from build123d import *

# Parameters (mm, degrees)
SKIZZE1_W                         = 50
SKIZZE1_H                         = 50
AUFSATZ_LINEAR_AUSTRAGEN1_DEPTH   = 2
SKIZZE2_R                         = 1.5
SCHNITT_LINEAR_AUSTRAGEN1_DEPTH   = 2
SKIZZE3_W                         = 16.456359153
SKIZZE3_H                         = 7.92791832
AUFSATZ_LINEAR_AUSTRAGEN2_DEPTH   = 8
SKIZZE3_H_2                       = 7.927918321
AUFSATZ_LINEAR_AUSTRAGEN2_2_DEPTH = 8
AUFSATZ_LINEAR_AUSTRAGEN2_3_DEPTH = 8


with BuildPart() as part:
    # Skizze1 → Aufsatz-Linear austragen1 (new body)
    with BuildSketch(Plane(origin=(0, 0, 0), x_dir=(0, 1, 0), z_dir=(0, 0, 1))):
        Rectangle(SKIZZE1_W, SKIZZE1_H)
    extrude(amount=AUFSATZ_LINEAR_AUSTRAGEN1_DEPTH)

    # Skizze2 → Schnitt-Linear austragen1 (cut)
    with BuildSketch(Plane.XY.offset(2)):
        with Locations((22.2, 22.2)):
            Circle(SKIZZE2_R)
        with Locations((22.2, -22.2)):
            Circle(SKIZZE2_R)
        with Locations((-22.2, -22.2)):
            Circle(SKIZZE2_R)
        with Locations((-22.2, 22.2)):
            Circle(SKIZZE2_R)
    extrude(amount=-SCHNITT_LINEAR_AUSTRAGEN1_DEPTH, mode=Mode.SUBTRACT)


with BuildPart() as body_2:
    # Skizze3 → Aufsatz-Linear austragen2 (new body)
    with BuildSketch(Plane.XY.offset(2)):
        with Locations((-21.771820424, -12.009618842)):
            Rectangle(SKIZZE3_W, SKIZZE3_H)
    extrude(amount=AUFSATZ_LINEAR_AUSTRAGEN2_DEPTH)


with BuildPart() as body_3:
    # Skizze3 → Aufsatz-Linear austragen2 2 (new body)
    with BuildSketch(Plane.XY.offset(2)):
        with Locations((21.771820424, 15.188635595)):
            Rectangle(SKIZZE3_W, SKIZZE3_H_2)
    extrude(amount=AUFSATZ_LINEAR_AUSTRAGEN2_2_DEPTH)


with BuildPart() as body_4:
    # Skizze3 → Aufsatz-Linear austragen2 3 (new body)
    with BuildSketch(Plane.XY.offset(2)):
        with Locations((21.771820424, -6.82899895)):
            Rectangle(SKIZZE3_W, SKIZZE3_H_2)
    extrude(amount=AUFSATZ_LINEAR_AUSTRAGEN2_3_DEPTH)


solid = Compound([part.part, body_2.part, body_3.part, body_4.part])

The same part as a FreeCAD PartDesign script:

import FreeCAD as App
import Part
import Sketcher

doc = App.newDocument("Part")
body = doc.addObject("PartDesign::Body", "Body")

# Sketch on XY plane
sketch1 = body.newObject("Sketcher::SketchObject", "Sketch")
sketch1.AttachmentSupport = (doc.getObject("XY_Plane"), [""])
sketch1.MapMode = "FlatFace"
sketch1.addGeometry([
    Part.LineSegment(App.Vector(-25, -25, 0), App.Vector(25, -25, 0)),
    Part.LineSegment(App.Vector(25, -25, 0), App.Vector(25, 25, 0)),
    Part.LineSegment(App.Vector(25, 25, 0), App.Vector(-25, 25, 0)),
    Part.LineSegment(App.Vector(-25, 25, 0), App.Vector(-25, -25, 0)),
], False)
sketch1.addConstraint([
    Sketcher.Constraint("Coincident", 0, 2, 1, 1),
    Sketcher.Constraint("Coincident", 1, 2, 2, 1),
    Sketcher.Constraint("Coincident", 2, 2, 3, 1),
    Sketcher.Constraint("Coincident", 3, 2, 0, 1),
    Sketcher.Constraint("Horizontal", 0),
    Sketcher.Constraint("Vertical", 1),
    Sketcher.Constraint("Horizontal", 2),
    Sketcher.Constraint("Vertical", 3),
    Sketcher.Constraint("Symmetric", 0, 2, 2, 2, -1, 1),
    Sketcher.Constraint("Equal", 2, 1),
    Sketcher.Constraint("DistanceX", 0, 1, 0, 2, 50.0),
])
pad1 = body.newObject("PartDesign::Pad", "Pad")
pad1.Profile = sketch1
pad1.Length = 2

# Sketch on XY plane
sketch2 = body.newObject("Sketcher::SketchObject", "Sketch001")
sketch2.AttachmentSupport = (doc.getObject("XY_Plane"), [""])
sketch2.MapMode = "FlatFace"
sketch2.AttachmentOffset = App.Placement(App.Vector(0, 0, 2), App.Rotation())
sketch2.addGeometry([
    Part.Circle(App.Vector(22.2, 22.2, 0), App.Vector(0, 0, 1), 1.5),
    Part.Circle(App.Vector(22.2, -22.2, 0), App.Vector(0, 0, 1), 1.5),
    Part.Circle(App.Vector(-22.2, -22.2, 0), App.Vector(0, 0, 1), 1.5),
    Part.Circle(App.Vector(-22.2, 22.2, 0), App.Vector(0, 0, 1), 1.5),
], False)
sketch2.addConstraint([
    Sketcher.Constraint("Equal", 0, 1),
    Sketcher.Constraint("Equal", 1, 2),
    Sketcher.Constraint("Equal", 2, 3),
    Sketcher.Constraint("Symmetric", 0, 3, 2, 3, -1, 1),
    Sketcher.Constraint("Symmetric", 1, 3, 3, 3, -1, 1),
    Sketcher.Constraint("Symmetric", 1, 3, 2, 3, -2),
    Sketcher.Constraint("Diameter", 0, 3.0),
    Sketcher.Constraint("DistanceX", -1, 1, 0, 3, 22.2),
    Sketcher.Constraint("DistanceY", -1, 1, 0, 3, 22.2),
])
pocket1 = body.newObject("PartDesign::Pocket", "Pocket")
pocket1.Profile = sketch2
pocket1.Length = 2
body2 = doc.addObject("PartDesign::Body", "Body001")

# Sketch on XY plane
sketch3 = body2.newObject("Sketcher::SketchObject", "Sketch002")
sketch3.AttachmentSupport = (doc.getObject("XY_Plane001"), [""])
sketch3.MapMode = "FlatFace"
sketch3.AttachmentOffset = App.Placement(App.Vector(0, 0, 2), App.Rotation())
sketch3.addGeometry([
    Part.LineSegment(App.Vector(-30, -8.04566, 0), App.Vector(-30, -15.973578, 0)),
    Part.LineSegment(App.Vector(-30, -15.973578, 0), App.Vector(-13.543641, -15.973578, 0)),
    Part.LineSegment(App.Vector(-13.543641, -15.973578, 0), App.Vector(-13.543641, -8.04566, 0)),
    Part.LineSegment(App.Vector(-13.543641, -8.04566, 0), App.Vector(-30, -8.04566, 0)),
], False)
sketch3.addConstraint([
    Sketcher.Constraint("Coincident", 0, 2, 1, 1),
    Sketcher.Constraint("Coincident", 1, 2, 2, 1),
    Sketcher.Constraint("Coincident", 2, 2, 3, 1),
    Sketcher.Constraint("Coincident", 3, 2, 0, 1),
    Sketcher.Constraint("Vertical", 0),
    Sketcher.Constraint("Horizontal", 1),
    Sketcher.Constraint("Vertical", 2),
    Sketcher.Constraint("Horizontal", 3),
    Sketcher.Constraint("DistanceX", 0, 2, -1, 1, 30.0),
    Sketcher.Constraint("DistanceX", 1, 1, 1, 2, 16.456359),
    Sketcher.Constraint("DistanceY", 0, 2, 0, 1, 7.927918),
    Sketcher.Constraint("DistanceY", 0, 2, -1, 1, 15.973578),
])
pad2 = body2.newObject("PartDesign::Pad", "Pad001")
pad2.Profile = sketch3
pad2.Length = 8
body3 = doc.addObject("PartDesign::Body", "Body002")

# Sketch on XY plane
sketch4 = body3.newObject("Sketcher::SketchObject", "Sketch003")
sketch4.AttachmentSupport = (doc.getObject("XY_Plane002"), [""])
sketch4.MapMode = "FlatFace"
sketch4.AttachmentOffset = App.Placement(App.Vector(0, 0, 2), App.Rotation())
sketch4.addGeometry([
    Part.LineSegment(App.Vector(13.543641, 19.152595, 0), App.Vector(13.543641, 11.224676, 0)),
    Part.LineSegment(App.Vector(13.543641, 11.224676, 0), App.Vector(30, 11.224676, 0)),
    Part.LineSegment(App.Vector(30, 11.224676, 0), App.Vector(30, 19.152595, 0)),
    Part.LineSegment(App.Vector(30, 19.152595, 0), App.Vector(13.543641, 19.152595, 0)),
], False)
sketch4.addConstraint([
    Sketcher.Constraint("Coincident", 0, 2, 1, 1),
    Sketcher.Constraint("Coincident", 1, 2, 2, 1),
    Sketcher.Constraint("Coincident", 2, 2, 3, 1),
    Sketcher.Constraint("Coincident", 3, 2, 0, 1),
    Sketcher.Constraint("Vertical", 0),
    Sketcher.Constraint("Horizontal", 1),
    Sketcher.Constraint("Vertical", 2),
    Sketcher.Constraint("Horizontal", 3),
    Sketcher.Constraint("DistanceX", -1, 1, 1, 2, 30.0),
    Sketcher.Constraint("DistanceX", 1, 1, 1, 2, 16.456359),
    Sketcher.Constraint("DistanceY", 0, 2, 0, 1, 7.927918),
    Sketcher.Constraint("DistanceY", -1, 1, 0, 2, 11.224676),
])
pad3 = body3.newObject("PartDesign::Pad", "Pad002")
pad3.Profile = sketch4
pad3.Length = 8
body4 = doc.addObject("PartDesign::Body", "Body003")

# Sketch on XY plane
sketch5 = body4.newObject("Sketcher::SketchObject", "Sketch004")
sketch5.AttachmentSupport = (doc.getObject("XY_Plane003"), [""])
sketch5.MapMode = "FlatFace"
sketch5.AttachmentOffset = App.Placement(App.Vector(0, 0, 2), App.Rotation())
sketch5.addGeometry([
    Part.LineSegment(App.Vector(13.543641, -2.86504, 0), App.Vector(13.543641, -10.792958, 0)),
    Part.LineSegment(App.Vector(13.543641, -10.792958, 0), App.Vector(30, -10.792958, 0)),
    Part.LineSegment(App.Vector(30, -10.792958, 0), App.Vector(30, -2.86504, 0)),
    Part.LineSegment(App.Vector(30, -2.86504, 0), App.Vector(13.543641, -2.86504, 0)),
], False)
sketch5.addConstraint([
    Sketcher.Constraint("Coincident", 0, 2, 1, 1),
    Sketcher.Constraint("Coincident", 1, 2, 2, 1),
    Sketcher.Constraint("Coincident", 2, 2, 3, 1),
    Sketcher.Constraint("Coincident", 3, 2, 0, 1),
    Sketcher.Constraint("Vertical", 0),
    Sketcher.Constraint("Horizontal", 1),
    Sketcher.Constraint("Vertical", 2),
    Sketcher.Constraint("Horizontal", 3),
    Sketcher.Constraint("DistanceX", -1, 1, 1, 2, 30.0),
    Sketcher.Constraint("DistanceX", 1, 1, 1, 2, 16.456359),
    Sketcher.Constraint("DistanceY", 0, 2, 0, 1, 7.927918),
    Sketcher.Constraint("DistanceY", 0, 2, -1, 1, 10.792958),
])
pad4 = body4.newObject("PartDesign::Pad", "Pad003")
pad4.Profile = sketch5
pad4.Length = 8

doc.recompute()
